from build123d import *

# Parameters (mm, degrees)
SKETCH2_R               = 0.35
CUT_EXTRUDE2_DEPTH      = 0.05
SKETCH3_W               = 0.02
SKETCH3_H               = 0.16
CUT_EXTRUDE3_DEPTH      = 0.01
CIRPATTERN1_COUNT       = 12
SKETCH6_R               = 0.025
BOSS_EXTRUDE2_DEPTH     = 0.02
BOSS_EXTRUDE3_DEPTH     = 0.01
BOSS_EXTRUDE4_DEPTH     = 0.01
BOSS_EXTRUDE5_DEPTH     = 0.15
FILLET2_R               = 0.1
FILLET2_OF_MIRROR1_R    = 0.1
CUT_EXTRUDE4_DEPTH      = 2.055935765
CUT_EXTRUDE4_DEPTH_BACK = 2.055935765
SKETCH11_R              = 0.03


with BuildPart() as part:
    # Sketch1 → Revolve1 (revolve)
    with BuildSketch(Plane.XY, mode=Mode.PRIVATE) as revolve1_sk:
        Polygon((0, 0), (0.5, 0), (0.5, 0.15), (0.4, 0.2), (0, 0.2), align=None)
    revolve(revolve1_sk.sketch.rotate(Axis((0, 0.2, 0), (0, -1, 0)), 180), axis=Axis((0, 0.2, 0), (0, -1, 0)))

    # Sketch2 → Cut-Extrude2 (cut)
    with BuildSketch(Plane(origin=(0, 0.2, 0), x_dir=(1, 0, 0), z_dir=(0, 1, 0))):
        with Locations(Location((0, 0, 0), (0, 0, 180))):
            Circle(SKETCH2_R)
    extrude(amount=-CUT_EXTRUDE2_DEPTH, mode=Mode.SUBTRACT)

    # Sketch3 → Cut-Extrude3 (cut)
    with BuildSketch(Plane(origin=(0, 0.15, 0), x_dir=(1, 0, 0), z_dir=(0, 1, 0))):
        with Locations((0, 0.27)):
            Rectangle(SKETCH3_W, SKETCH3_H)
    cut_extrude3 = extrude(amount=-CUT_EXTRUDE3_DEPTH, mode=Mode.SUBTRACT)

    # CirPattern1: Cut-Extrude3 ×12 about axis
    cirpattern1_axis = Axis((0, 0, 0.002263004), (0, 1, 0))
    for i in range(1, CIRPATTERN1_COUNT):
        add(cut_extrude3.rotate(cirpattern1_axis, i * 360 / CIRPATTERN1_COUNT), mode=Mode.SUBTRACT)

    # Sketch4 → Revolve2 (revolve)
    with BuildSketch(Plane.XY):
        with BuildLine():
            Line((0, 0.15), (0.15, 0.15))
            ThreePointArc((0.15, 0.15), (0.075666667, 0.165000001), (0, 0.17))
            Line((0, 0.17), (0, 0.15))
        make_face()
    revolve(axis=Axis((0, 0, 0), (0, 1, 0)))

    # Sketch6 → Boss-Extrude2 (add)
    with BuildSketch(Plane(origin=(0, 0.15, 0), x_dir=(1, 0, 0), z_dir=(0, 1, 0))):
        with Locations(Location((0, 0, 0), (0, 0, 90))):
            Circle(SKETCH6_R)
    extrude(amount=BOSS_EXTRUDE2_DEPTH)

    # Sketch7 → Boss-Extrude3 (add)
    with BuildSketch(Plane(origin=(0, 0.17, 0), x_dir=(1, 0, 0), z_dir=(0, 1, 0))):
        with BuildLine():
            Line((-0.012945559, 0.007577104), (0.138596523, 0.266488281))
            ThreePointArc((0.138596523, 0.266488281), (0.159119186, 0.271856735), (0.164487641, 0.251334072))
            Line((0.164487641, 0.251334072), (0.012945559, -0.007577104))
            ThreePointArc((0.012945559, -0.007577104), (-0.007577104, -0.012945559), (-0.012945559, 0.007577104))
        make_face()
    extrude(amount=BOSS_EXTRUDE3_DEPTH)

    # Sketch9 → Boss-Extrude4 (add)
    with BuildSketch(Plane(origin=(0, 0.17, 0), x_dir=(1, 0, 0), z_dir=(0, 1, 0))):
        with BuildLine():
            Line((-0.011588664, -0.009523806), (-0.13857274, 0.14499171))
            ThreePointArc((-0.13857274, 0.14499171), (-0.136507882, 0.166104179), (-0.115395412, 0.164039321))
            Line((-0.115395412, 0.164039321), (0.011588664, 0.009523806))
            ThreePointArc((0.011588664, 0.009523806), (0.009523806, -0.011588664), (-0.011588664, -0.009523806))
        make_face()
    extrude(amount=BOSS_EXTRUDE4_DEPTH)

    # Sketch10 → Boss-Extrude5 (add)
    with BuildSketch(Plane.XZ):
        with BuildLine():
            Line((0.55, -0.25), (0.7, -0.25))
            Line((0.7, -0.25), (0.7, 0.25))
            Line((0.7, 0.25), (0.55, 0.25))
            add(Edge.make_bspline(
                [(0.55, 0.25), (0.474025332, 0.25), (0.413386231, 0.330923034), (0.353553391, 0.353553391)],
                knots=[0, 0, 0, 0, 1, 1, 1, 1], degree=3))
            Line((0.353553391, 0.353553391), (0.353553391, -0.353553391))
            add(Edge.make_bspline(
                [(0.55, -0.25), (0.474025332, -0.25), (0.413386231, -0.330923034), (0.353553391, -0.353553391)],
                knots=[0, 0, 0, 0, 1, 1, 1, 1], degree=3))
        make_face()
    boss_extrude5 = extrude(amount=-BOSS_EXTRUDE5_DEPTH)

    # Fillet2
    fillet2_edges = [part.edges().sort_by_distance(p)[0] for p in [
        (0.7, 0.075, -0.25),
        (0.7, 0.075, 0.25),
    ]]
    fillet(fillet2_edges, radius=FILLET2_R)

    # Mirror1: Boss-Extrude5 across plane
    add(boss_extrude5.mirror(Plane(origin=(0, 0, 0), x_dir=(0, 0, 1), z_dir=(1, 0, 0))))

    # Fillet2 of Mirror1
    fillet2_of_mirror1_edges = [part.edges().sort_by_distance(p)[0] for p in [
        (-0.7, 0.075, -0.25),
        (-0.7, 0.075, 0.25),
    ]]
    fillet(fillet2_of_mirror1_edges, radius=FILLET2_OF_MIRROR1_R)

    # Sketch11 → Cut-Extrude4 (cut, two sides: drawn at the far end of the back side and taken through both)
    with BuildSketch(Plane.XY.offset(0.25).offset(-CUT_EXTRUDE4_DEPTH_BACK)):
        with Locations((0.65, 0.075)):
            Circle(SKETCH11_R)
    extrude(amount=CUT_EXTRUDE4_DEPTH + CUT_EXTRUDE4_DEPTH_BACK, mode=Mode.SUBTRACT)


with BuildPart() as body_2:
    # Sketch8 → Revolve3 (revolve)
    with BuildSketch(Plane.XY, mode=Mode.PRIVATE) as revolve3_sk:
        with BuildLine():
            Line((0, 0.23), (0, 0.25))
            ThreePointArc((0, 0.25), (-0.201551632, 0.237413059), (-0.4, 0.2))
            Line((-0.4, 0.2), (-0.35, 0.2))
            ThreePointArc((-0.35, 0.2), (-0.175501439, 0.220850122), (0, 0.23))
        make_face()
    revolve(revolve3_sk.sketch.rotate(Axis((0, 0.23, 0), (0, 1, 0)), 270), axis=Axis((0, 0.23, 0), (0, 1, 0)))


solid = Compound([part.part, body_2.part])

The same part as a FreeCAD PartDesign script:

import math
import FreeCAD as App
import Part
import Sketcher

V = App.Vector


def edges_at(feature, points):
    """Names of the edges that pass closest to the given points."""
    edges = feature.Shape.Edges
    near = lambda p: min(range(len(edges)), key=lambda i: edges[i].distToShape(Part.Vertex(*p))[0])
    return sorted({f"Edge{near(p) + 1}" for p in points})


def add_polygon(sketch, points):
    """Adds a closed chain of lines whose ends are joined by coincident constraints."""
    first, n = sketch.GeometryCount, len(points)
    for a, b in zip(points, points[1:] + points[:1]):
        sketch.addGeometry(Part.LineSegment(App.Vector(*a, 0), App.Vector(*b, 0)), False)
    for i in range(n):
        sketch.addConstraint(Sketcher.Constraint("Coincident", first + i, 2, first + (i + 1) % n, 1))

doc = App.newDocument("Part")
params = doc.addObject("Spreadsheet::Sheet", "Params")
for row, (alias, value) in enumerate([
    ("sketch1_width", "0.5 mm"),
    ("sketch1_width2", "0.4 mm"),
    ("sketch1_height", "0.2 mm"),
    ("sketch1_height2", "0.15 mm"),
    ("revolution_angle", "360 deg"),
    ("sketch2_diameter", "0.7 mm"),
    ("pocket1_length", "0.05 mm"),
    ("sketch3_width", "0.02 mm"),
    ("sketch3_height", "0.16 mm"),
    ("pocket2_length", "0.01 mm"),
    ("sketch4_radius", "0.57 mm"),
    ("sketch4_width", "0.15 mm"),
    ("sketch4_height", "0.02 mm"),
    ("revolution2_angle", "360 deg"),
    ("sketch5_diameter", "0.05 mm"),
    ("pad1_length", "0.02 mm"),
    ("sketch6_length", "0.3 mm"),
    ("pad2_length", "0.01 mm"),
    ("sketch7_length", "0.2 mm"),
    ("pad3_length", "0.01 mm"),
    ("sketch8_width", "0.15 mm"),
    ("pad4_length", "0.15 mm"),
    ("fillet_radius", "0.1 mm"),
    ("fillet2_radius", "0.1 mm"),
    ("sketch9_diameter", "0.06 mm"),
    ("sketch10_radius", "1.63 mm"),
    ("sketch10_radius2", "2.63 mm"),
    ("sketch10_width", "0.05 mm"),
    ("sketch10_height", "0.02 mm"),
    ("revolution3_angle", "360 deg"),
], start=1):
    params.set(f"A{row}", alias)
    params.set(f"B{row}", "=" + value)
    params.setAlias(f"B{row}", alias)

body = doc.addObject("PartDesign::Body", "Body")

# Sketch on XY plane
sketch1 = body.newObject("Sketcher::SketchObject", "Sketch")
sketch1.AttachmentSupport = (doc.getObject("XY_Plane"), [""])
sketch1.MapMode = "FlatFace"
add_polygon(sketch1, [(0, 0), (0.5, 0), (0.5, 0.15), (0.4, 0.2), (0, 0.2)])  # lines 0-4
sketch1.addConstraint([
    Sketcher.Constraint("Horizontal", 0),
    Sketcher.Constraint("Vertical", 1),
    Sketcher.Constraint("Horizontal", 3),
    Sketcher.Constraint("Vertical", 4),
    Sketcher.Constraint("Coincident", 4, 2, -1, 1),
    Sketcher.Constraint("DistanceX", 0, 1, 0, 2, 0.5),
    Sketcher.Constraint("DistanceX", 3, 2, 3, 1, 0.4),
    Sketcher.Constraint("DistanceY", 4, 2, 4, 1, 0.2),
    Sketcher.Constraint("DistanceY", 1, 1, 1, 2, 0.15),
])
sketch1.setExpression("Constraints[10]", "Params.sketch1_width")
sketch1.setExpression("Constraints[11]", "Params.sketch1_width2")
sketch1.setExpression("Constraints[12]", "Params.sketch1_height")
sketch1.setExpression("Constraints[13]", "Params.sketch1_height2")
revolution = body.newObject("PartDesign::Revolution", "Revolution")
revolution.Profile = sketch1
revolution.ReferenceAxis = (sketch1, ["V_Axis"])
revolution.setExpression("Angle", "Params.revolution_angle")

# Sketch on XZ plane
sketch2 = body.newObject("Sketcher::SketchObject", "Sketch001")
sketch2.AttachmentSupport = (doc.getObject("XZ_Plane"), [""])
sketch2.MapMode = "FlatFace"
sketch2.AttachmentOffset = App.Placement(V(0, 0, -0.2), App.Rotation())
sketch2.addGeometry(Part.Circle(V(0, 0, 0), V(0, 0, 1), 0.35), False)
sketch2.addConstraint([
    Sketcher.Constraint("Coincident", 0, 3, -1, 1),
    Sketcher.Constraint("Diameter", 0, 0.7),
])
sketch2.setExpression("Constraints[1]", "Params.sketch2_diameter")
pocket1 = body.newObject("PartDesign::Pocket", "Pocket")
pocket1.Profile = sketch2
pocket1.setExpression("Length", "Params.pocket1_length")
pocket1.Reversed = True

# Sketch on XZ plane
sketch3 = body.newObject("Sketcher::SketchObject", "Sketch002")
sketch3.AttachmentSupport = (doc.getObject("XZ_Plane"), [""])
sketch3.MapMode = "FlatFace"
sketch3.AttachmentOffset = App.Placement(V(0, 0, -0.15), App.Rotation())
add_polygon(sketch3, [(-0.01, -0.35), (-0.01, -0.19), (0.01, -0.19), (0.01, -0.35)])  # lines 0-3
sketch3.addConstraint([
    Sketcher.Constraint("Vertical", 0),
    Sketcher.Constraint("Horizontal", 1),
    Sketcher.Constraint("Vertical", 2),
    Sketcher.Constraint("Horizontal", 3),
    Sketcher.Constraint("DistanceX", 1, 1, 1, 2, 0.02),
    Sketcher.Constraint("DistanceY", 0, 1, 0, 2, 0.16),
    Sketcher.Constraint("DistanceX", 0, 2, -1, 1, 0.01),
    Sketcher.Constraint("DistanceY", 0, 2, -1, 1, 0.19),
])
sketch3.setExpression("Constraints[8]", "Params.sketch3_width")
sketch3.setExpression("Constraints[9]", "Params.sketch3_height")
pocket2 = body.newObject("PartDesign::Pocket", "Pocket001")
pocket2.Profile = sketch3
pocket2.setExpression("Length", "Params.pocket2_length")
pocket2.Reversed = True
doc.recompute()

datumline = body.newObject("PartDesign::Line", "DatumLine")
datumline.Placement = App.Placement(V(0, 0, 0.002263), App.Rotation(V(0, 0, 1), V(0, 1, 0)))
polarpattern = body.newObject("PartDesign::PolarPattern", "PolarPattern")
polarpattern.Originals = [pocket2]
polarpattern.Axis = (datumline, [""])
polarpattern.Angle = 360
polarpattern.Occurrences = 12
body.Tip = polarpattern

# Sketch on XY plane
sketch4 = body.newObject("Sketcher::SketchObject", "Sketch003")
sketch4.AttachmentSupport = (doc.getObject("XY_Plane"), [""])
sketch4.MapMode = "FlatFace"
sketch4.addGeometry([
    Part.LineSegment(V(0, 0.15, 0), V(0.15, 0.15, 0)),
    Part.ArcOfCircle(Part.Circle(V(0.000333, -0.4, 0), V(0, 0, 1), 0.57), math.radians(74.777205), math.radians(90.033508)),
    Part.LineSegment(V(0, 0.17, 0), V(0, 0.15, 0)),
], False)
sketch4.addConstraint([
    Sketcher.Constraint("Coincident", 0, 2, 1, 1),
    Sketcher.Constraint("Coincident", 1, 2, 2, 1),
    Sketcher.Constraint("Coincident", 2, 2, 0, 1),
    Sketcher.Constraint("Horizontal", 0),
    Sketcher.Constraint("Vertical", 2),
    Sketcher.Constraint("PointOnObject", 1, 2, -2),
    Sketcher.Constraint("Radius", 1, 0.57),
    Sketcher.Constraint("DistanceX", 0, 1, 0, 2, 0.15),
    Sketcher.Constraint("DistanceY", 2, 2, 2, 1, 0.02),
    Sketcher.Constraint("DistanceY", 1, 3, -1, 1, 0.4),
])
sketch4.setExpression("Constraints[6]", "Params.sketch4_radius")
sketch4.setExpression("Constraints[7]", "Params.sketch4_width")
sketch4.setExpression("Constraints[8]", "Params.sketch4_height")
revolution2 = body.newObject("PartDesign::Revolution", "Revolution001")
revolution2.Profile = sketch4
revolution2.ReferenceAxis = (sketch4, ["V_Axis"])
revolution2.setExpression("Angle", "Params.revolution2_angle")

# Sketch on XZ plane
sketch5 = body.newObject("Sketcher::SketchObject", "Sketch004")
sketch5.AttachmentSupport = (doc.getObject("XZ_Plane"), [""])
sketch5.MapMode = "FlatFace"
sketch5.AttachmentOffset = App.Placement(V(0, 0, -0.15), App.Rotation())
sketch5.addGeometry(Part.Circle(V(0, 0, 0), V(0, 0, 1), 0.025), False)
sketch5.addConstraint([
    Sketcher.Constraint("Coincident", 0, 3, -1, 1),
    Sketcher.Constraint("Diameter", 0, 0.05),
])
sketch5.setExpression("Constraints[1]", "Params.sketch5_diameter")
pad1 = body.newObject("PartDesign::Pad", "Pad")
pad1.Profile = sketch5
pad1.setExpression("Length", "Params.pad1_length")
pad1.Reversed = True

# Sketch on XZ plane
sketch6 = body.newObject("Sketcher::SketchObject", "Sketch005")
sketch6.AttachmentSupport = (doc.getObject("XZ_Plane"), [""])
sketch6.MapMode = "FlatFace"
sketch6.AttachmentOffset = App.Placement(V(0, 0, -0.17), App.Rotation())
sketch6.addGeometry([
    Part.LineSegment(V(0.138597, -0.266488, 0), V(-0.012946, -0.007577, 0)),
    Part.ArcOfCircle(Part.Circle(V(0, 0, 0), V(0, 0, 1), 0.015), math.radians(30.340664), math.radians(210.340664)),
    Part.LineSegment(V(0.012946, 0.007577, 0), V(0.164488, -0.251334, 0)),
    Part.ArcOfCircle(Part.Circle(V(0.151542, -0.258911, 0), V(0, 0, 1), 0.015), math.radians(-149.659333), math.radians(30.340664)),
], False)
sketch6.addConstraint([
    Sketcher.Constraint("Tangent", 0, 2, 1, 2),
    Sketcher.Constraint("Tangent", 1, 1, 2, 1),
    Sketcher.Constraint("Tangent", 2, 2, 3, 2),
    Sketcher.Constraint("Tangent", 3, 1, 0, 1),
    Sketcher.Constraint("Coincident", 1, 3, -1, 1),
    Sketcher.Constraint("Equal", 1, 3),
    Sketcher.Constraint("Radius", 1, 0.015),
    Sketcher.Constraint("Distance", 0, 0.3),
    Sketcher.Constraint("DistanceY", 3, 3, -1, 1, 0.258911),
])
sketch6.setExpression("Constraints[7]", "Params.sketch6_length")
pad2 = body.newObject("PartDesign::Pad", "Pad001")
pad2.Profile = sketch6
pad2.setExpression("Length", "Params.pad2_length")
pad2.Reversed = True

# Sketch on XZ plane
sketch7 = body.newObject("Sketcher::SketchObject", "Sketch006")
sketch7.AttachmentSupport = (doc.getObject("XZ_Plane"), [""])
sketch7.MapMode = "FlatFace"
sketch7.AttachmentOffset = App.Placement(V(0, 0, -0.17), App.Rotation())
sketch7.addGeometry([
    Part.LineSegment(V(-0.138573, -0.144992, 0), V(-0.011589, 0.009524, 0)),
    Part.ArcOfCircle(Part.Circle(V(0, 0, 0), V(0, 0, 1), 0.015), math.radians(-39.414079), math.radians(140.585921)),
    Part.LineSegment(V(0.011589, -0.009524, 0), V(-0.115395, -0.164039, 0)),
    Part.ArcOfCircle(Part.Circle(V(-0.126984, -0.154516, 0), V(0, 0, 1), 0.015), math.radians(140.585923), math.radians(320.585921)),
], False)
sketch7.addConstraint([
    Sketcher.Constraint("Tangent", 0, 2, 1, 2),
    Sketcher.Constraint("Tangent", 1, 1, 2, 1),
    Sketcher.Constraint("Tangent", 2, 2, 3, 2),
    Sketcher.Constraint("Tangent", 3, 1, 0, 1),
    Sketcher.Constraint("Coincident", 1, 3, -1, 1),
    Sketcher.Constraint("Equal", 1, 3),
    Sketcher.Constraint("Radius", 1, 0.015),
    Sketcher.Constraint("Distance", 0, 0.2),
    Sketcher.Constraint("DistanceX", 0, 2, -1, 1, 0.011589),
])
sketch7.setExpression("Constraints[7]", "Params.sketch7_length")
pad3 = body.newObject("PartDesign::Pad", "Pad002")
pad3.Profile = sketch7
pad3.setExpression("Length", "Params.pad3_length")
pad3.Reversed = True

# Sketch on XZ plane
sketch8 = body.newObject("Sketcher::SketchObject", "Sketch007")
sketch8.AttachmentSupport = (doc.getObject("XZ_Plane"), [""])
sketch8.MapMode = "FlatFace"
sketch8.addGeometry([
    Part.LineSegment(V(0.55, -0.25, 0), V(0.7, -0.25, 0)),  # 0
    Part.LineSegment(V(0.7, -0.25, 0), V(0.7, 0.25, 0)),  # 1
    Part.LineSegment(V(0.7, 0.25, 0), V(0.55, 0.25, 0)),  # 2
    Part.BSplineCurve([V(0.55, 0.25, 0), V(0.474025, 0.25, 0), V(0.413386, 0.330923, 0), V(0.353553, 0.353553, 0)], [4, 4], [0, 1], False, 3, [1, 1, 1, 1], False),  # 3
    Part.LineSegment(V(0.353553, 0.353553, 0), V(0.353553, -0.353553, 0)),  # 4
    Part.BSplineCurve([V(0.55, -0.25, 0), V(0.474025, -0.25, 0), V(0.413386, -0.330923, 0), V(0.353553, -0.353553, 0)], [4, 4], [0, 1], False, 3, [1, 1, 1, 1], False),  # 5
], False)
sketch8.addConstraint([
    Sketcher.Constraint("Block", 3),
    Sketcher.Constraint("Block", 5),
    Sketcher.Constraint("Coincident", 0, 2, 1, 1),
    Sketcher.Constraint("Coincident", 1, 2, 2, 1),
    Sketcher.Constraint("Coincident", 2, 2, 3, 1),
    Sketcher.Constraint("Coincident", 3, 2, 4, 1),
    Sketcher.Constraint("Coincident", 4, 2, 5, 2),
    Sketcher.Constraint("Coincident", 5, 1, 0, 1),
    Sketcher.Constraint("Horizontal", 0),
    Sketcher.Constraint("Vertical", 1),
    Sketcher.Constraint("Horizontal", 2),
    Sketcher.Constraint("DistanceX", 0, 1, 0, 2, 0.15),
])
sketch8.setExpression("Constraints[11]", "Params.sketch8_width")
pad4 = body.newObject("PartDesign::Pad", "Pad003")
pad4.Profile = sketch8
pad4.setExpression("Length", "Params.pad4_length")
pad4.Reversed = True
doc.recompute()

fillet = body.newObject("PartDesign::Fillet", "Fillet")
fillet.Base = (pad4, edges_at(pad4, [(0.7, 0.075, -0.25), (0.7, 0.075, 0.25)]))
fillet.setExpression("Radius", "Params.fillet_radius")
doc.recompute()

mirrored = body.newObject("PartDesign::Mirrored", "Mirrored")
mirrored.Originals = [pad4]
mirrored.MirrorPlane = (doc.getObject("YZ_Plane"), [""])
body.Tip = mirrored
doc.recompute()

fillet2 = body.newObject("PartDesign::Fillet", "Fillet001")
fillet2.Base = (mirrored, edges_at(mirrored, [(-0.7, 0.075, -0.25), (-0.7, 0.075, 0.25)]))
fillet2.setExpression("Radius", "Params.fillet2_radius")

# Sketch on XY plane
sketch9 = body.newObject("Sketcher::SketchObject", "Sketch008")
sketch9.AttachmentSupport = (doc.getObject("XY_Plane"), [""])
sketch9.MapMode = "FlatFace"
sketch9.AttachmentOffset = App.Placement(V(0, 0, 0.25), App.Rotation())
sketch9.addGeometry(Part.Circle(V(0.65, 0.075, 0), V(0, 0, 1), 0.03), False)
sketch9.addConstraint([
    Sketcher.Constraint("Diameter", 0, 0.06),
    Sketcher.Constraint("DistanceX", -1, 1, 0, 3, 0.65),
    Sketcher.Constraint("DistanceY", -1, 1, 0, 3, 0.075),
])
sketch9.setExpression("Constraints[0]", "Params.sketch9_diameter")
pocket3 = body.newObject("PartDesign::Pocket", "Pocket002")
pocket3.Profile = sketch9
pocket3.Type = "ThroughAll"
pocket3.Midplane = True
body2 = doc.addObject("PartDesign::Body", "Body001")

# Sketch on XY plane
sketch10 = body2.newObject("Sketcher::SketchObject", "Sketch009")
sketch10.AttachmentSupport = (doc.getObject("XY_Plane001"), [""])
sketch10.MapMode = "FlatFace"
sketch10.addGeometry([
    Part.LineSegment(V(0, 0.23, 0), V(0, 0.25, 0)),
    Part.ArcOfCircle(Part.Circle(V(0.000625, -1.38, 0), V(0, 0, 1), 1.63), math.radians(90.021969), math.radians(104.228064)),
    Part.LineSegment(V(-0.4, 0.2, 0), V(-0.35, 0.2, 0)),
    Part.ArcOfCircle(Part.Circle(V(0.049104, -2.399542, 0), V(0, 0, 1), 2.63), math.radians(91.069806), math.radians(98.728378)),
], False)
sketch10.addConstraint([
    Sketcher.Constraint("Coincident", 0, 2, 1, 1),
    Sketcher.Constraint("Coincident", 1, 2, 2, 1),
    Sketcher.Constraint("Coincident", 2, 2, 3, 2),
    Sketcher.Constraint("Coincident", 3, 1, 0, 1),
    Sketcher.Constraint("Vertical", 0),
    Sketcher.Constraint("Horizontal", 2),
    Sketcher.Constraint("PointOnObject", 0, 2, -2),
    Sketcher.Constraint("Radius", 1, 1.63),
    Sketcher.Constraint("Radius", 3, 2.63),
    Sketcher.Constraint("DistanceX", 2, 1, 2, 2, 0.05),
    Sketcher.Constraint("DistanceY", 0, 1, 0, 2, 0.02),
    Sketcher.Constraint("DistanceX", 1, 2, -1, 1, 0.4),
    Sketcher.Constraint("DistanceY", -1, 1, 1, 2, 0.2),
    Sketcher.Constraint("DistanceY", 1, 3, -1, 1, 1.38),
])
sketch10.setExpression("Constraints[7]", "Params.sketch10_radius")
sketch10.setExpression("Constraints[8]", "Params.sketch10_radius2")
sketch10.setExpression("Constraints[9]", "Params.sketch10_width")
sketch10.setExpression("Constraints[10]", "Params.sketch10_height")
revolution3 = body2.newObject("PartDesign::Revolution", "Revolution002")
revolution3.Profile = sketch10
revolution3.ReferenceAxis = (sketch10, ["V_Axis"])
revolution3.setExpression("Angle", "Params.revolution3_angle")

doc.recompute()
